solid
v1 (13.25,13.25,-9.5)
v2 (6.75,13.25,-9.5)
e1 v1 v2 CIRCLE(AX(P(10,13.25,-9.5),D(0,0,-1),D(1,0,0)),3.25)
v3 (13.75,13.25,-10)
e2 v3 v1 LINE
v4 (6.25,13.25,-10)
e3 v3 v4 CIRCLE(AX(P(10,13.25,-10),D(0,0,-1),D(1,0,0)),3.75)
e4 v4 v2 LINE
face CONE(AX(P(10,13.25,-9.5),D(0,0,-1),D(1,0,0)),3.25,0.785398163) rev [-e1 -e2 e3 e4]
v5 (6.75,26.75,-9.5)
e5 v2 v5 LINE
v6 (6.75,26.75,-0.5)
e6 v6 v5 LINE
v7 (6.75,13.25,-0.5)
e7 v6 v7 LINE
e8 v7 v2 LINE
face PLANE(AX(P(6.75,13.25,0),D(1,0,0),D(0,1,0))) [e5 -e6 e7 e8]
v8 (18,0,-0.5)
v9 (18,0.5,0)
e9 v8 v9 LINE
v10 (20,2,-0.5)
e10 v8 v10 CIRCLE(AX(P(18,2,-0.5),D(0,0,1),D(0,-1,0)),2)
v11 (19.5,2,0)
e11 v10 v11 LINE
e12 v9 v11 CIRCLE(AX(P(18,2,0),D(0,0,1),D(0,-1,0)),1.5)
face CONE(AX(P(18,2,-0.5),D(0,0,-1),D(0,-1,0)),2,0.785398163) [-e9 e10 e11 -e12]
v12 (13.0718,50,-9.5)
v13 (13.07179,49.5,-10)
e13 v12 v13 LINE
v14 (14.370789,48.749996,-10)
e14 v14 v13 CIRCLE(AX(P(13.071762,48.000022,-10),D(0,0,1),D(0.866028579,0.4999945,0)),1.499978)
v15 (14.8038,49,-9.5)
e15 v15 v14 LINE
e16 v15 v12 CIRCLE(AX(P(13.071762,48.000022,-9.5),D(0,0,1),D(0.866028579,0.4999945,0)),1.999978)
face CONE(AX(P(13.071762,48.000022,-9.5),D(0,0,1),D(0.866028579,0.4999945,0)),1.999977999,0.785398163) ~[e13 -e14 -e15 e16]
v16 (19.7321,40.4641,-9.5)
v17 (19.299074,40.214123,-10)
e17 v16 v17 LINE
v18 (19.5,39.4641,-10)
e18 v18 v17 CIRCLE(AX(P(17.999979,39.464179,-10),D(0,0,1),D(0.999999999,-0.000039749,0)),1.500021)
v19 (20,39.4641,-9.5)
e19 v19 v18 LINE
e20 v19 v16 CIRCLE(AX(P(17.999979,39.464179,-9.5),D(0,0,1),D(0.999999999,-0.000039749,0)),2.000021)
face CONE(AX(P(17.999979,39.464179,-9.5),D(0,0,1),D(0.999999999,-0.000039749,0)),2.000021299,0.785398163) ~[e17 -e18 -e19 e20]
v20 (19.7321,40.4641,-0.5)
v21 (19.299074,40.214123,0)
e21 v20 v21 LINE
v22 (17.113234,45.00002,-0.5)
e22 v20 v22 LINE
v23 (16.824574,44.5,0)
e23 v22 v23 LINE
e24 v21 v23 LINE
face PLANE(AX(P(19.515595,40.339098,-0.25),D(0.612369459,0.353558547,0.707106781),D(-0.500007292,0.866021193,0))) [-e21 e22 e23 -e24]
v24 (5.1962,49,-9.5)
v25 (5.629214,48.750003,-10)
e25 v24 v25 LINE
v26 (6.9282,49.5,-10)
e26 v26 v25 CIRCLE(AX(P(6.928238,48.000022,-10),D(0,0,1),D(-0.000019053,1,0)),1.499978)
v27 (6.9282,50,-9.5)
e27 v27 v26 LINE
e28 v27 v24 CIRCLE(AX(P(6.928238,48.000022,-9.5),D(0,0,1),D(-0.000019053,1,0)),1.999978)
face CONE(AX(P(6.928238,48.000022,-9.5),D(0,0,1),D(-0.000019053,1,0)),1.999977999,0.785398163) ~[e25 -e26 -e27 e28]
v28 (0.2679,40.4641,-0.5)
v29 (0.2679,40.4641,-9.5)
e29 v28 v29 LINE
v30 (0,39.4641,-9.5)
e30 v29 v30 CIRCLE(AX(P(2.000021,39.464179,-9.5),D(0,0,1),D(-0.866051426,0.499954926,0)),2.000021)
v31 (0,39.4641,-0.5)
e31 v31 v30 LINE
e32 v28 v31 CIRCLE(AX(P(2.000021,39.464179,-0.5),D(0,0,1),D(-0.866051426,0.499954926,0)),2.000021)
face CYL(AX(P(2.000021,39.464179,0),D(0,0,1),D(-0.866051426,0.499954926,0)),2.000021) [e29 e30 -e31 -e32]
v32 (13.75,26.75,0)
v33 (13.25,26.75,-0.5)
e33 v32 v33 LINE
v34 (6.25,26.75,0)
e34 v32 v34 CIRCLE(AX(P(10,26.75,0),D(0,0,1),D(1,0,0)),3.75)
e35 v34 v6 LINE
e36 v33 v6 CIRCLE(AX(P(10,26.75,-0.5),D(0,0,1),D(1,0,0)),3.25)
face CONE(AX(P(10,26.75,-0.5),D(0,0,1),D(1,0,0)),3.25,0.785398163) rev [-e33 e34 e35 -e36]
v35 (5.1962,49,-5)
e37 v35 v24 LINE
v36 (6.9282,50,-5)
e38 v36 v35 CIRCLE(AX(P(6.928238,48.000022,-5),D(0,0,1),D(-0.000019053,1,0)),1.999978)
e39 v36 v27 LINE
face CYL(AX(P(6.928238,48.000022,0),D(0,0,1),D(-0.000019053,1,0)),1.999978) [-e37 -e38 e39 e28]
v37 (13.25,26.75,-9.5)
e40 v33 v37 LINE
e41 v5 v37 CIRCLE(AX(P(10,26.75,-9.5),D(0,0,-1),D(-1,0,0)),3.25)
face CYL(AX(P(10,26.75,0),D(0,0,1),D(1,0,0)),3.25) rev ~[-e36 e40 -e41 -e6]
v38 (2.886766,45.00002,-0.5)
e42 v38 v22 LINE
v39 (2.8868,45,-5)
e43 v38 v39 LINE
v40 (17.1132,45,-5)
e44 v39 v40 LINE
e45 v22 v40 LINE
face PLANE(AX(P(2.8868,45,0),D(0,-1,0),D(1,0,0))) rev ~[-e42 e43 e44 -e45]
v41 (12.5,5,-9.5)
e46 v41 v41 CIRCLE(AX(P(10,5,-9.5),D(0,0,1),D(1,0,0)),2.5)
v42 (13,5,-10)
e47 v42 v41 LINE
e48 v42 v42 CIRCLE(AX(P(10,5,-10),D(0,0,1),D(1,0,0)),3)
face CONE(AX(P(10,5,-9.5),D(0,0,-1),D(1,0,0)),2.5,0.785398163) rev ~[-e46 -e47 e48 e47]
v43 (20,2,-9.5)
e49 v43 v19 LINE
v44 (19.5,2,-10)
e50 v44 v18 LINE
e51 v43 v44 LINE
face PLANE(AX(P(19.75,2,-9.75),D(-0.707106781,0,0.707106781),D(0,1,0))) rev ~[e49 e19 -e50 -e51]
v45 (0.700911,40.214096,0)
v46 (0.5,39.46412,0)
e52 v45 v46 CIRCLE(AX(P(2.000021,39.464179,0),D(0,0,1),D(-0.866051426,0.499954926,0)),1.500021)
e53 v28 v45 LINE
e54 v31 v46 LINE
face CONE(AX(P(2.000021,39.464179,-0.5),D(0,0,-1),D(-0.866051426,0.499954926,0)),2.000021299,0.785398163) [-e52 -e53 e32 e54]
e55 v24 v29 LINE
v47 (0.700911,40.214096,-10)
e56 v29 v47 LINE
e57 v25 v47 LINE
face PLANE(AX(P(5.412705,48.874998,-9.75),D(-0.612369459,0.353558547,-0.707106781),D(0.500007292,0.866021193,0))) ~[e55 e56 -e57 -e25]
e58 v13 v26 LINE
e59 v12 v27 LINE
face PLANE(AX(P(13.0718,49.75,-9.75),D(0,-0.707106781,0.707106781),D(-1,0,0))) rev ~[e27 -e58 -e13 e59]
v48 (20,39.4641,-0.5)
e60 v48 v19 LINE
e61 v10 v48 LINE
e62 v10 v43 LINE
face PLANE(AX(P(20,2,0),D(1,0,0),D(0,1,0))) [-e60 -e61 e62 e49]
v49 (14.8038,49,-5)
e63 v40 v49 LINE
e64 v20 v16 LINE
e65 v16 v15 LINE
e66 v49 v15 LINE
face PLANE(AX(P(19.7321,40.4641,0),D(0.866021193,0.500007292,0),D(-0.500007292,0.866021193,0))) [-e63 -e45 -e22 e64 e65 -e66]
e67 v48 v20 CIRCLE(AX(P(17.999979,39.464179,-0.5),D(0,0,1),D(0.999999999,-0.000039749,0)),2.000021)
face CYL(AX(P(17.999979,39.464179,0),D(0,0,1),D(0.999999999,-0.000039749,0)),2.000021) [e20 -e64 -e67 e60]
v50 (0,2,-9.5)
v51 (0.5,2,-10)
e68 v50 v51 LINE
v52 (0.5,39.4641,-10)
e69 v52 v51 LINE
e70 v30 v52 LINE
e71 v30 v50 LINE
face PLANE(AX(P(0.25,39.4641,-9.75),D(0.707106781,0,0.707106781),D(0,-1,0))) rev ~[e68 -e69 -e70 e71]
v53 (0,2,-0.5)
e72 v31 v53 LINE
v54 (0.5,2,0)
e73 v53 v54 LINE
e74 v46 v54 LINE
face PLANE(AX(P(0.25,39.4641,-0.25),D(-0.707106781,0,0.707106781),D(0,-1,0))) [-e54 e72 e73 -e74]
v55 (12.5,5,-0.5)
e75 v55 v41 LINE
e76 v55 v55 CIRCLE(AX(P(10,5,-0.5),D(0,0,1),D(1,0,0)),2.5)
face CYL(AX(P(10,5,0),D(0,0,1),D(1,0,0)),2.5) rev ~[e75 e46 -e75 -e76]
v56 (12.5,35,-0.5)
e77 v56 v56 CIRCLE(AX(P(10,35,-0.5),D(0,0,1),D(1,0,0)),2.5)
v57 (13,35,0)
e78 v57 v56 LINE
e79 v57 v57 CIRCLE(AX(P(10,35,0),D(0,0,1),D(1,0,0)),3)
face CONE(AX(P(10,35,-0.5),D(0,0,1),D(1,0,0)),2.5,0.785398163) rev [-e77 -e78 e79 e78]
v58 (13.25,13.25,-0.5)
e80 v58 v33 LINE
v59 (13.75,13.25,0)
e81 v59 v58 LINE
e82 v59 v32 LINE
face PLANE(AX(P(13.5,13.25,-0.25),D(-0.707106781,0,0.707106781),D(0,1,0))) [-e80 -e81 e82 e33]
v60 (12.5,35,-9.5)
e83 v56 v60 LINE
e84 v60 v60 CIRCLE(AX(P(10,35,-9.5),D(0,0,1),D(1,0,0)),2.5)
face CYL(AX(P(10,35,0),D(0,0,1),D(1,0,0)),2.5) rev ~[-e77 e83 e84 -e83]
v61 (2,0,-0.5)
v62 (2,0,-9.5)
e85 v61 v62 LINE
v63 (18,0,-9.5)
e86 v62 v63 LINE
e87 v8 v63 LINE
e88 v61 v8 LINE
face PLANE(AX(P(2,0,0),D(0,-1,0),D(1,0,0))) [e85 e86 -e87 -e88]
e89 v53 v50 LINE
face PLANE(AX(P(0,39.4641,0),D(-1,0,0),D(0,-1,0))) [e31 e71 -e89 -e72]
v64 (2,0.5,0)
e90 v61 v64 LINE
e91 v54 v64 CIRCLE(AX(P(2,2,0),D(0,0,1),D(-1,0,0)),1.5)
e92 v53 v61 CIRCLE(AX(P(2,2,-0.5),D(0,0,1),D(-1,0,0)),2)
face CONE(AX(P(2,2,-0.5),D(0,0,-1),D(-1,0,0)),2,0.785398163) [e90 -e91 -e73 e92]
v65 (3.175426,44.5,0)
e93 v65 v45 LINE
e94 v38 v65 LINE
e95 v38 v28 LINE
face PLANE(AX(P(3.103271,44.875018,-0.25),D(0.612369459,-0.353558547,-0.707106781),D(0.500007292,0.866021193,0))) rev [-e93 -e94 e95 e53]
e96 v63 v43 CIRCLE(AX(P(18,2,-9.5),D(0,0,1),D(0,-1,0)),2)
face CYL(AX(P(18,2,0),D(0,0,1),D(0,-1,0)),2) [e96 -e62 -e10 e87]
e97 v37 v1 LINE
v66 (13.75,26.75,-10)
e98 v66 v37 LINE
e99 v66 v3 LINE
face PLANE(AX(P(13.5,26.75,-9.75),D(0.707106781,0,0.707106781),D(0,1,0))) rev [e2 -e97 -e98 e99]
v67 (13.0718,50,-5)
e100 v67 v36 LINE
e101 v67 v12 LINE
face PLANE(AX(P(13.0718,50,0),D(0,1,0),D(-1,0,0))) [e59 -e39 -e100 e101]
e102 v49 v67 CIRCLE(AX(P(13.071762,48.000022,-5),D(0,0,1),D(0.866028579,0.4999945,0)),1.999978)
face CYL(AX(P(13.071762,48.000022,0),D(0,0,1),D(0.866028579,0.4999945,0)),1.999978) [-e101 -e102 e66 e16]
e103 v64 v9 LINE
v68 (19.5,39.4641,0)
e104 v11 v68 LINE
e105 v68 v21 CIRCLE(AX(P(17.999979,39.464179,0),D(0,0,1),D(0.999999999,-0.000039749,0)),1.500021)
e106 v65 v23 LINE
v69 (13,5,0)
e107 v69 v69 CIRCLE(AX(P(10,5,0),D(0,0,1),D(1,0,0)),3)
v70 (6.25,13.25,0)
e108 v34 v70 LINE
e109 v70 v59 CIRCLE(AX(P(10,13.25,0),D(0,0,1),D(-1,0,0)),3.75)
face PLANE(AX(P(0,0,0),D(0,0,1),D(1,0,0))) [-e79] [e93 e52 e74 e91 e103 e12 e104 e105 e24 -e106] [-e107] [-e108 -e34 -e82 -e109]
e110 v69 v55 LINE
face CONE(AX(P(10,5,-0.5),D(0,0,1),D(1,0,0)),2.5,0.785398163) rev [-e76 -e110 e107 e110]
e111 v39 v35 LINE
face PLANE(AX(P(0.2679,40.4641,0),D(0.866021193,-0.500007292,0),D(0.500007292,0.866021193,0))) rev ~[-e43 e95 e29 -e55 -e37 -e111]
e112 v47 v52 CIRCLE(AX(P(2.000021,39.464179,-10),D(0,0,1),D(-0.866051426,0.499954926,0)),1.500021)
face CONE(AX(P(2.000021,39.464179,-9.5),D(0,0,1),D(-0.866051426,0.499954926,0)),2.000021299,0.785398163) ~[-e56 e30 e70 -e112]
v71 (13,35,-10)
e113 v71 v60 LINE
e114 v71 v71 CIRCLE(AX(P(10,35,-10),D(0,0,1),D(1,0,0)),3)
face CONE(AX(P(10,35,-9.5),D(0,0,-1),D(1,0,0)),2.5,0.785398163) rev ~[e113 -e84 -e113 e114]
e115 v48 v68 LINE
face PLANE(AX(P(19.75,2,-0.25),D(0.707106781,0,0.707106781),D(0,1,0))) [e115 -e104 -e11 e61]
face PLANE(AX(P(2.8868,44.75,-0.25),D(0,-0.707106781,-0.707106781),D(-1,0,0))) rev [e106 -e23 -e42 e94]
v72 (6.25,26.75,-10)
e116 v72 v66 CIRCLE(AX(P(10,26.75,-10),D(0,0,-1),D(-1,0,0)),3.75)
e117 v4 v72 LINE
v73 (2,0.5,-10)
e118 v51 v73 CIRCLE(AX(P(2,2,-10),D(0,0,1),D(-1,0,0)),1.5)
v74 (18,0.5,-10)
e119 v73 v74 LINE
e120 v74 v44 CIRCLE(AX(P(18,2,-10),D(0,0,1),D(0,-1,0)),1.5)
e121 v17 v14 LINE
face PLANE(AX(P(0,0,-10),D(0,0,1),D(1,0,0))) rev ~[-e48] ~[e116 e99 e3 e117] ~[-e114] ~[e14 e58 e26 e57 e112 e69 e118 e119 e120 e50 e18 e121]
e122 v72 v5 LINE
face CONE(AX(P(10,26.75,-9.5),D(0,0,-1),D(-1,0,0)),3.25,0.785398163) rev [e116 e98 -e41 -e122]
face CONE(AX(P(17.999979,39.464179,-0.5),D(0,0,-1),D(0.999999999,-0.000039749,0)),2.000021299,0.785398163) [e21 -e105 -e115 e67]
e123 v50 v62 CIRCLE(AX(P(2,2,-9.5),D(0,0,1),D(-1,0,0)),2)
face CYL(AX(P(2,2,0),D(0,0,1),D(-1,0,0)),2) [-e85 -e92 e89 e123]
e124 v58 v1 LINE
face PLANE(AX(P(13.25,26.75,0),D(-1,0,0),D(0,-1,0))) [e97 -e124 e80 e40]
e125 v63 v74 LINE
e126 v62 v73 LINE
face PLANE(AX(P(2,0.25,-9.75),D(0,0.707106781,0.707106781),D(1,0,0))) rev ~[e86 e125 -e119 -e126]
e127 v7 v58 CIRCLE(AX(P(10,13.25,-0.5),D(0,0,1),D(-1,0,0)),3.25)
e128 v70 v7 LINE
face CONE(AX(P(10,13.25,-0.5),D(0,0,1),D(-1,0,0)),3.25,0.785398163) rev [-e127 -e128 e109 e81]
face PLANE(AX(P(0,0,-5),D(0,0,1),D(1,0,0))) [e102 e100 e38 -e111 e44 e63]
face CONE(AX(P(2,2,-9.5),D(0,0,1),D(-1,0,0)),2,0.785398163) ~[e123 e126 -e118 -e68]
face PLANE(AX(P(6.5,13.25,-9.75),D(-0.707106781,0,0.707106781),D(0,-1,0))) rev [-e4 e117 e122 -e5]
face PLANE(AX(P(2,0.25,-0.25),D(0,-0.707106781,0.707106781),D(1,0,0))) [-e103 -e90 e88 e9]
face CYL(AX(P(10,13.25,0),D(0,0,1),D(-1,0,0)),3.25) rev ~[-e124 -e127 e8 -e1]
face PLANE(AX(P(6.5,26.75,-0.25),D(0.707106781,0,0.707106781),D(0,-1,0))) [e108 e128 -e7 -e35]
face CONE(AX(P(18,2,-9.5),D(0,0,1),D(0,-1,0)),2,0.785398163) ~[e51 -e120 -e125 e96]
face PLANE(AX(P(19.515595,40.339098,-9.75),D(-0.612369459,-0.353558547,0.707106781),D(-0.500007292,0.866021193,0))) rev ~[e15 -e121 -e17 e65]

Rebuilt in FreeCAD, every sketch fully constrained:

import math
import FreeCAD as App
import Part
import Sketcher
Q = App.Units.Quantity


def edges_at(feature, points):
    """Names of the edges that pass closest to the given points."""
    edges = feature.Shape.Edges
    near = lambda p: min(range(len(edges)), key=lambda i: edges[i].distToShape(Part.Vertex(*p))[0])
    return sorted({f"Edge{near(p) + 1}" for p in points})

doc = App.newDocument("Part")
body = doc.addObject("PartDesign::Body", "Body")

sketch1 = doc.addObject("Sketcher::SketchObject", "Sketch")
body.addObject(sketch1)
sketch1.AttachmentSupport = (doc.XY_Plane, [""])
sketch1.MapMode = "FlatFace"
sketch1.addGeometry([
    Part.ArcOfCircle(Part.Circle(App.Vector(2, 2, 0), App.Vector(0, 0, 1), 2), math.radians(180), math.radians(270)),
    Part.LineSegment(App.Vector(2, 0, 0), App.Vector(18, 0, 0)),
    Part.ArcOfCircle(Part.Circle(App.Vector(18, 2, 0), App.Vector(0, 0, 1), 2), math.radians(-90), math.radians(0)),
    Part.LineSegment(App.Vector(20, 2, 0), App.Vector(20, 39.5, 0)),
    Part.ArcOfCircle(Part.Circle(App.Vector(18, 39.5, 0), App.Vector(0, 0, 1), 2), math.radians(0), math.radians(30)),
    Part.LineSegment(App.Vector(19.7, 40.5, 0), App.Vector(14.8, 49, 0)),
    Part.ArcOfCircle(Part.Circle(App.Vector(13.1, 48, 0), App.Vector(0, 0, 1), 2), math.radians(30), math.radians(90)),
    Part.LineSegment(App.Vector(13.1, 50, 0), App.Vector(6.9, 50, 0)),
    Part.ArcOfCircle(Part.Circle(App.Vector(6.9, 48, 0), App.Vector(0, 0, 1), 2), math.radians(90), math.radians(150)),
    Part.LineSegment(App.Vector(5.2, 49, 0), App.Vector(0.3, 40.5, 0)),
    Part.ArcOfCircle(Part.Circle(App.Vector(2, 39.5, 0), App.Vector(0, 0, 1), 2), math.radians(150), math.radians(180)),
    Part.LineSegment(App.Vector(0, 39.5, 0), App.Vector(0, 2, 0)),
    Part.Circle(App.Vector(10, 5, 0), App.Vector(0, 0, 1), 2.5),
    Part.ArcOfCircle(Part.Circle(App.Vector(10, 26.8, 0), App.Vector(0, 0, 1), 3.2), math.radians(0), math.radians(180)),
    Part.LineSegment(App.Vector(13.2, 26.8, 0), App.Vector(13.2, 13.2, 0)),
    Part.ArcOfCircle(Part.Circle(App.Vector(10, 13.2, 0), App.Vector(0, 0, 1), 3.2), math.radians(180), math.radians(360)),
    Part.LineSegment(App.Vector(6.8, 13.2, 0), App.Vector(6.8, 26.8, 0)),
    Part.Circle(App.Vector(10, 35, 0), App.Vector(0, 0, 1), 2.5),
], False)
sketch1.addConstraint([
    Sketcher.Constraint("Tangent", 0, 2, 1, 1),
    Sketcher.Constraint("Tangent", 1, 2, 2, 1),
    Sketcher.Constraint("Tangent", 2, 2, 3, 1),
    Sketcher.Constraint("Tangent", 3, 2, 4, 1),
    Sketcher.Constraint("Tangent", 4, 2, 5, 1),
    Sketcher.Constraint("Tangent", 5, 2, 6, 1),
    Sketcher.Constraint("Tangent", 6, 2, 7, 1),
    Sketcher.Constraint("Tangent", 7, 2, 8, 1),
    Sketcher.Constraint("Tangent", 8, 2, 9, 1),
    Sketcher.Constraint("Tangent", 9, 2, 10, 1),
    Sketcher.Constraint("Tangent", 10, 2, 11, 1),
    Sketcher.Constraint("Tangent", 11, 2, 0, 1),
    Sketcher.Constraint("Tangent", 13, 1, 14, 1),
    Sketcher.Constraint("Tangent", 14, 2, 15, 2),
    Sketcher.Constraint("Tangent", 15, 1, 16, 1),
    Sketcher.Constraint("Tangent", 16, 2, 13, 2),
    Sketcher.Constraint("Horizontal", 1),
    Sketcher.Constraint("Vertical", 3),
    Sketcher.Constraint("Horizontal", 7),
    Sketcher.Constraint("Vertical", 11),
    Sketcher.Constraint("Vertical", 14),
    Sketcher.Constraint("Vertical", 16),
    Sketcher.Constraint("Equal", 0, 2),
    Sketcher.Constraint("Equal", 2, 4),
    Sketcher.Constraint("Equal", 4, 6),
    Sketcher.Constraint("Equal", 6, 8),
    Sketcher.Constraint("Equal", 8, 10),
    Sketcher.Constraint("Equal", 12, 17),
    Sketcher.Constraint("PointOnObject", 0, 2, -1),
    Sketcher.Constraint("PointOnObject", 10, 2, -2),
    Sketcher.Constraint("Horizontal", 4, 3, 10, 3),
    Sketcher.Constraint("Horizontal", 5, 2, 8, 2),
    Sketcher.Constraint("Vertical", 12, 3, 13, 3),
    Sketcher.Constraint("Vertical", 15, 3, 17, 3),
    Sketcher.Constraint("Diameter", 12, Q("5 mm")),
    Sketcher.Constraint("Radius", 0, Q("2 mm")),
    Sketcher.Constraint("Radius", 13, Q("3.25 mm")),
    Sketcher.Constraint("DistanceX", -1, 1, 12, 3, Q("10 mm")),
    Sketcher.Constraint("DistanceY", -1, 1, 12, 3, Q("5 mm")),
    Sketcher.Constraint("DistanceX", -1, 1, 2, 2, Q("20 mm")),
    Sketcher.Constraint("DistanceY", -1, 1, 6, 2, Q("50 mm")),
    Sketcher.Constraint("Angle", 5, Q("120.0005 deg")),
    Sketcher.Constraint("DistanceY", 12, 3, 15, 3, Q("8.25 mm")),
    Sketcher.Constraint("DistanceY", 13, 3, 17, 3, Q("8.25 mm")),
    Sketcher.Constraint("DistanceY", 14, 2, 14, 1, Q("13.5 mm")),
    Sketcher.Constraint("DistanceY", 3, 1, 3, 2, Q("37.464 mm")),
])
pad1 = doc.addObject("PartDesign::Pad", "Pad")
body.addObject(pad1)
pad1.Profile = sketch1
pad1.Length = 10
pad1.Reversed = True

sketch2 = doc.addObject("Sketcher::SketchObject", "Sketch001")
body.addObject(sketch2)
sketch2.AttachmentSupport = (doc.XY_Plane, [""])
sketch2.MapMode = "FlatFace"
sketch2.addGeometry([
    Part.LineSegment(App.Vector(5.2, 49, 0), App.Vector(2.9, 45, 0)),
    Part.LineSegment(App.Vector(2.9, 45, 0), App.Vector(17.1, 45, 0)),
    Part.LineSegment(App.Vector(17.1, 45, 0), App.Vector(14.8, 49, 0)),
    Part.ArcOfCircle(Part.Circle(App.Vector(13.1, 48, 0), App.Vector(0, 0, 1), 2), math.radians(30), math.radians(90)),
    Part.LineSegment(App.Vector(13.1, 50, 0), App.Vector(6.9, 50, 0)),
    Part.ArcOfCircle(Part.Circle(App.Vector(6.9, 48, 0), App.Vector(0, 0, 1), 2), math.radians(90), math.radians(150)),
], False)
sketch2.addConstraint([
    Sketcher.Constraint("Coincident", 0, 2, 1, 1),
    Sketcher.Constraint("Coincident", 1, 2, 2, 1),
    Sketcher.Constraint("Tangent", 2, 2, 3, 1),
    Sketcher.Constraint("Tangent", 3, 2, 4, 1),
    Sketcher.Constraint("Tangent", 4, 2, 5, 1),
    Sketcher.Constraint("Tangent", 5, 2, 0, 1),
    Sketcher.Constraint("Horizontal", 1),
    Sketcher.Constraint("Horizontal", 4),
    Sketcher.Constraint("Equal", 3, 5),
    Sketcher.Constraint("Horizontal", 2, 2, 5, 2),
    Sketcher.Constraint("Radius", 3, Q("2 mm")),
    Sketcher.Constraint("DistanceY", -1, 1, 3, 2, Q("50 mm")),
    Sketcher.Constraint("DistanceY", 1, 2, 3, 2, Q("5 mm")),
    Sketcher.Constraint("Angle", 0, Q("-120.0005 deg")),
    Sketcher.Constraint("DistanceX", 1, 1, 1, 2, Q("14.2264 mm")),
    Sketcher.Constraint("DistanceX", -1, 1, 3, 3, Q("13.0718 mm")),
])
pocket1 = doc.addObject("PartDesign::Pocket", "Pocket")
body.addObject(pocket1)
pocket1.Profile = sketch2
pocket1.Length = 5
doc.recompute()

chamfer = doc.addObject("PartDesign::Chamfer", "Chamfer")
body.addObject(chamfer)
chamfer.Base = (pocket1, edges_at(pocket1, [
    (10, 30, 0),
    (13.25, 20, 0),
    (10, 10, 0),
    (6.75, 20, 0),
    (7.669, 35.904, 0),
    (7.669, 5.904, 0),
    (0, 20.732, 0),
    (0.586, 0.586, 0),
    (10, 0, 0),
    (19.414, 0.586, 0),
    (20, 20.732, 0),
    (19.932, 39.982, 0),
    (18.423, 42.732, 0),
    (1.577, 42.732, 0),
    (0.068, 39.982, 0),
    (10, 45, 0),
    (0, 20.732, -10),
    (0.068, 39.982, -10),
    (2.732, 44.732, -10),
    (5.928, 49.732, -10),
    (10, 50, -10),
    (14.072, 49.732, -10),
    (17.268, 44.732, -10),
    (19.932, 39.982, -10),
    (20, 20.732, -10),
    (19.414, 0.586, -10),
    (10, 0, -10),
    (0.586, 0.586, -10),
    (7.669, 4.096, -10),
    (6.75, 20, -10),
    (10, 10, -10),
    (13.25, 20, -10),
    (10, 30, -10),
    (7.669, 34.096, -10),
]))
chamfer.Size = 0.5

doc.recompute()
